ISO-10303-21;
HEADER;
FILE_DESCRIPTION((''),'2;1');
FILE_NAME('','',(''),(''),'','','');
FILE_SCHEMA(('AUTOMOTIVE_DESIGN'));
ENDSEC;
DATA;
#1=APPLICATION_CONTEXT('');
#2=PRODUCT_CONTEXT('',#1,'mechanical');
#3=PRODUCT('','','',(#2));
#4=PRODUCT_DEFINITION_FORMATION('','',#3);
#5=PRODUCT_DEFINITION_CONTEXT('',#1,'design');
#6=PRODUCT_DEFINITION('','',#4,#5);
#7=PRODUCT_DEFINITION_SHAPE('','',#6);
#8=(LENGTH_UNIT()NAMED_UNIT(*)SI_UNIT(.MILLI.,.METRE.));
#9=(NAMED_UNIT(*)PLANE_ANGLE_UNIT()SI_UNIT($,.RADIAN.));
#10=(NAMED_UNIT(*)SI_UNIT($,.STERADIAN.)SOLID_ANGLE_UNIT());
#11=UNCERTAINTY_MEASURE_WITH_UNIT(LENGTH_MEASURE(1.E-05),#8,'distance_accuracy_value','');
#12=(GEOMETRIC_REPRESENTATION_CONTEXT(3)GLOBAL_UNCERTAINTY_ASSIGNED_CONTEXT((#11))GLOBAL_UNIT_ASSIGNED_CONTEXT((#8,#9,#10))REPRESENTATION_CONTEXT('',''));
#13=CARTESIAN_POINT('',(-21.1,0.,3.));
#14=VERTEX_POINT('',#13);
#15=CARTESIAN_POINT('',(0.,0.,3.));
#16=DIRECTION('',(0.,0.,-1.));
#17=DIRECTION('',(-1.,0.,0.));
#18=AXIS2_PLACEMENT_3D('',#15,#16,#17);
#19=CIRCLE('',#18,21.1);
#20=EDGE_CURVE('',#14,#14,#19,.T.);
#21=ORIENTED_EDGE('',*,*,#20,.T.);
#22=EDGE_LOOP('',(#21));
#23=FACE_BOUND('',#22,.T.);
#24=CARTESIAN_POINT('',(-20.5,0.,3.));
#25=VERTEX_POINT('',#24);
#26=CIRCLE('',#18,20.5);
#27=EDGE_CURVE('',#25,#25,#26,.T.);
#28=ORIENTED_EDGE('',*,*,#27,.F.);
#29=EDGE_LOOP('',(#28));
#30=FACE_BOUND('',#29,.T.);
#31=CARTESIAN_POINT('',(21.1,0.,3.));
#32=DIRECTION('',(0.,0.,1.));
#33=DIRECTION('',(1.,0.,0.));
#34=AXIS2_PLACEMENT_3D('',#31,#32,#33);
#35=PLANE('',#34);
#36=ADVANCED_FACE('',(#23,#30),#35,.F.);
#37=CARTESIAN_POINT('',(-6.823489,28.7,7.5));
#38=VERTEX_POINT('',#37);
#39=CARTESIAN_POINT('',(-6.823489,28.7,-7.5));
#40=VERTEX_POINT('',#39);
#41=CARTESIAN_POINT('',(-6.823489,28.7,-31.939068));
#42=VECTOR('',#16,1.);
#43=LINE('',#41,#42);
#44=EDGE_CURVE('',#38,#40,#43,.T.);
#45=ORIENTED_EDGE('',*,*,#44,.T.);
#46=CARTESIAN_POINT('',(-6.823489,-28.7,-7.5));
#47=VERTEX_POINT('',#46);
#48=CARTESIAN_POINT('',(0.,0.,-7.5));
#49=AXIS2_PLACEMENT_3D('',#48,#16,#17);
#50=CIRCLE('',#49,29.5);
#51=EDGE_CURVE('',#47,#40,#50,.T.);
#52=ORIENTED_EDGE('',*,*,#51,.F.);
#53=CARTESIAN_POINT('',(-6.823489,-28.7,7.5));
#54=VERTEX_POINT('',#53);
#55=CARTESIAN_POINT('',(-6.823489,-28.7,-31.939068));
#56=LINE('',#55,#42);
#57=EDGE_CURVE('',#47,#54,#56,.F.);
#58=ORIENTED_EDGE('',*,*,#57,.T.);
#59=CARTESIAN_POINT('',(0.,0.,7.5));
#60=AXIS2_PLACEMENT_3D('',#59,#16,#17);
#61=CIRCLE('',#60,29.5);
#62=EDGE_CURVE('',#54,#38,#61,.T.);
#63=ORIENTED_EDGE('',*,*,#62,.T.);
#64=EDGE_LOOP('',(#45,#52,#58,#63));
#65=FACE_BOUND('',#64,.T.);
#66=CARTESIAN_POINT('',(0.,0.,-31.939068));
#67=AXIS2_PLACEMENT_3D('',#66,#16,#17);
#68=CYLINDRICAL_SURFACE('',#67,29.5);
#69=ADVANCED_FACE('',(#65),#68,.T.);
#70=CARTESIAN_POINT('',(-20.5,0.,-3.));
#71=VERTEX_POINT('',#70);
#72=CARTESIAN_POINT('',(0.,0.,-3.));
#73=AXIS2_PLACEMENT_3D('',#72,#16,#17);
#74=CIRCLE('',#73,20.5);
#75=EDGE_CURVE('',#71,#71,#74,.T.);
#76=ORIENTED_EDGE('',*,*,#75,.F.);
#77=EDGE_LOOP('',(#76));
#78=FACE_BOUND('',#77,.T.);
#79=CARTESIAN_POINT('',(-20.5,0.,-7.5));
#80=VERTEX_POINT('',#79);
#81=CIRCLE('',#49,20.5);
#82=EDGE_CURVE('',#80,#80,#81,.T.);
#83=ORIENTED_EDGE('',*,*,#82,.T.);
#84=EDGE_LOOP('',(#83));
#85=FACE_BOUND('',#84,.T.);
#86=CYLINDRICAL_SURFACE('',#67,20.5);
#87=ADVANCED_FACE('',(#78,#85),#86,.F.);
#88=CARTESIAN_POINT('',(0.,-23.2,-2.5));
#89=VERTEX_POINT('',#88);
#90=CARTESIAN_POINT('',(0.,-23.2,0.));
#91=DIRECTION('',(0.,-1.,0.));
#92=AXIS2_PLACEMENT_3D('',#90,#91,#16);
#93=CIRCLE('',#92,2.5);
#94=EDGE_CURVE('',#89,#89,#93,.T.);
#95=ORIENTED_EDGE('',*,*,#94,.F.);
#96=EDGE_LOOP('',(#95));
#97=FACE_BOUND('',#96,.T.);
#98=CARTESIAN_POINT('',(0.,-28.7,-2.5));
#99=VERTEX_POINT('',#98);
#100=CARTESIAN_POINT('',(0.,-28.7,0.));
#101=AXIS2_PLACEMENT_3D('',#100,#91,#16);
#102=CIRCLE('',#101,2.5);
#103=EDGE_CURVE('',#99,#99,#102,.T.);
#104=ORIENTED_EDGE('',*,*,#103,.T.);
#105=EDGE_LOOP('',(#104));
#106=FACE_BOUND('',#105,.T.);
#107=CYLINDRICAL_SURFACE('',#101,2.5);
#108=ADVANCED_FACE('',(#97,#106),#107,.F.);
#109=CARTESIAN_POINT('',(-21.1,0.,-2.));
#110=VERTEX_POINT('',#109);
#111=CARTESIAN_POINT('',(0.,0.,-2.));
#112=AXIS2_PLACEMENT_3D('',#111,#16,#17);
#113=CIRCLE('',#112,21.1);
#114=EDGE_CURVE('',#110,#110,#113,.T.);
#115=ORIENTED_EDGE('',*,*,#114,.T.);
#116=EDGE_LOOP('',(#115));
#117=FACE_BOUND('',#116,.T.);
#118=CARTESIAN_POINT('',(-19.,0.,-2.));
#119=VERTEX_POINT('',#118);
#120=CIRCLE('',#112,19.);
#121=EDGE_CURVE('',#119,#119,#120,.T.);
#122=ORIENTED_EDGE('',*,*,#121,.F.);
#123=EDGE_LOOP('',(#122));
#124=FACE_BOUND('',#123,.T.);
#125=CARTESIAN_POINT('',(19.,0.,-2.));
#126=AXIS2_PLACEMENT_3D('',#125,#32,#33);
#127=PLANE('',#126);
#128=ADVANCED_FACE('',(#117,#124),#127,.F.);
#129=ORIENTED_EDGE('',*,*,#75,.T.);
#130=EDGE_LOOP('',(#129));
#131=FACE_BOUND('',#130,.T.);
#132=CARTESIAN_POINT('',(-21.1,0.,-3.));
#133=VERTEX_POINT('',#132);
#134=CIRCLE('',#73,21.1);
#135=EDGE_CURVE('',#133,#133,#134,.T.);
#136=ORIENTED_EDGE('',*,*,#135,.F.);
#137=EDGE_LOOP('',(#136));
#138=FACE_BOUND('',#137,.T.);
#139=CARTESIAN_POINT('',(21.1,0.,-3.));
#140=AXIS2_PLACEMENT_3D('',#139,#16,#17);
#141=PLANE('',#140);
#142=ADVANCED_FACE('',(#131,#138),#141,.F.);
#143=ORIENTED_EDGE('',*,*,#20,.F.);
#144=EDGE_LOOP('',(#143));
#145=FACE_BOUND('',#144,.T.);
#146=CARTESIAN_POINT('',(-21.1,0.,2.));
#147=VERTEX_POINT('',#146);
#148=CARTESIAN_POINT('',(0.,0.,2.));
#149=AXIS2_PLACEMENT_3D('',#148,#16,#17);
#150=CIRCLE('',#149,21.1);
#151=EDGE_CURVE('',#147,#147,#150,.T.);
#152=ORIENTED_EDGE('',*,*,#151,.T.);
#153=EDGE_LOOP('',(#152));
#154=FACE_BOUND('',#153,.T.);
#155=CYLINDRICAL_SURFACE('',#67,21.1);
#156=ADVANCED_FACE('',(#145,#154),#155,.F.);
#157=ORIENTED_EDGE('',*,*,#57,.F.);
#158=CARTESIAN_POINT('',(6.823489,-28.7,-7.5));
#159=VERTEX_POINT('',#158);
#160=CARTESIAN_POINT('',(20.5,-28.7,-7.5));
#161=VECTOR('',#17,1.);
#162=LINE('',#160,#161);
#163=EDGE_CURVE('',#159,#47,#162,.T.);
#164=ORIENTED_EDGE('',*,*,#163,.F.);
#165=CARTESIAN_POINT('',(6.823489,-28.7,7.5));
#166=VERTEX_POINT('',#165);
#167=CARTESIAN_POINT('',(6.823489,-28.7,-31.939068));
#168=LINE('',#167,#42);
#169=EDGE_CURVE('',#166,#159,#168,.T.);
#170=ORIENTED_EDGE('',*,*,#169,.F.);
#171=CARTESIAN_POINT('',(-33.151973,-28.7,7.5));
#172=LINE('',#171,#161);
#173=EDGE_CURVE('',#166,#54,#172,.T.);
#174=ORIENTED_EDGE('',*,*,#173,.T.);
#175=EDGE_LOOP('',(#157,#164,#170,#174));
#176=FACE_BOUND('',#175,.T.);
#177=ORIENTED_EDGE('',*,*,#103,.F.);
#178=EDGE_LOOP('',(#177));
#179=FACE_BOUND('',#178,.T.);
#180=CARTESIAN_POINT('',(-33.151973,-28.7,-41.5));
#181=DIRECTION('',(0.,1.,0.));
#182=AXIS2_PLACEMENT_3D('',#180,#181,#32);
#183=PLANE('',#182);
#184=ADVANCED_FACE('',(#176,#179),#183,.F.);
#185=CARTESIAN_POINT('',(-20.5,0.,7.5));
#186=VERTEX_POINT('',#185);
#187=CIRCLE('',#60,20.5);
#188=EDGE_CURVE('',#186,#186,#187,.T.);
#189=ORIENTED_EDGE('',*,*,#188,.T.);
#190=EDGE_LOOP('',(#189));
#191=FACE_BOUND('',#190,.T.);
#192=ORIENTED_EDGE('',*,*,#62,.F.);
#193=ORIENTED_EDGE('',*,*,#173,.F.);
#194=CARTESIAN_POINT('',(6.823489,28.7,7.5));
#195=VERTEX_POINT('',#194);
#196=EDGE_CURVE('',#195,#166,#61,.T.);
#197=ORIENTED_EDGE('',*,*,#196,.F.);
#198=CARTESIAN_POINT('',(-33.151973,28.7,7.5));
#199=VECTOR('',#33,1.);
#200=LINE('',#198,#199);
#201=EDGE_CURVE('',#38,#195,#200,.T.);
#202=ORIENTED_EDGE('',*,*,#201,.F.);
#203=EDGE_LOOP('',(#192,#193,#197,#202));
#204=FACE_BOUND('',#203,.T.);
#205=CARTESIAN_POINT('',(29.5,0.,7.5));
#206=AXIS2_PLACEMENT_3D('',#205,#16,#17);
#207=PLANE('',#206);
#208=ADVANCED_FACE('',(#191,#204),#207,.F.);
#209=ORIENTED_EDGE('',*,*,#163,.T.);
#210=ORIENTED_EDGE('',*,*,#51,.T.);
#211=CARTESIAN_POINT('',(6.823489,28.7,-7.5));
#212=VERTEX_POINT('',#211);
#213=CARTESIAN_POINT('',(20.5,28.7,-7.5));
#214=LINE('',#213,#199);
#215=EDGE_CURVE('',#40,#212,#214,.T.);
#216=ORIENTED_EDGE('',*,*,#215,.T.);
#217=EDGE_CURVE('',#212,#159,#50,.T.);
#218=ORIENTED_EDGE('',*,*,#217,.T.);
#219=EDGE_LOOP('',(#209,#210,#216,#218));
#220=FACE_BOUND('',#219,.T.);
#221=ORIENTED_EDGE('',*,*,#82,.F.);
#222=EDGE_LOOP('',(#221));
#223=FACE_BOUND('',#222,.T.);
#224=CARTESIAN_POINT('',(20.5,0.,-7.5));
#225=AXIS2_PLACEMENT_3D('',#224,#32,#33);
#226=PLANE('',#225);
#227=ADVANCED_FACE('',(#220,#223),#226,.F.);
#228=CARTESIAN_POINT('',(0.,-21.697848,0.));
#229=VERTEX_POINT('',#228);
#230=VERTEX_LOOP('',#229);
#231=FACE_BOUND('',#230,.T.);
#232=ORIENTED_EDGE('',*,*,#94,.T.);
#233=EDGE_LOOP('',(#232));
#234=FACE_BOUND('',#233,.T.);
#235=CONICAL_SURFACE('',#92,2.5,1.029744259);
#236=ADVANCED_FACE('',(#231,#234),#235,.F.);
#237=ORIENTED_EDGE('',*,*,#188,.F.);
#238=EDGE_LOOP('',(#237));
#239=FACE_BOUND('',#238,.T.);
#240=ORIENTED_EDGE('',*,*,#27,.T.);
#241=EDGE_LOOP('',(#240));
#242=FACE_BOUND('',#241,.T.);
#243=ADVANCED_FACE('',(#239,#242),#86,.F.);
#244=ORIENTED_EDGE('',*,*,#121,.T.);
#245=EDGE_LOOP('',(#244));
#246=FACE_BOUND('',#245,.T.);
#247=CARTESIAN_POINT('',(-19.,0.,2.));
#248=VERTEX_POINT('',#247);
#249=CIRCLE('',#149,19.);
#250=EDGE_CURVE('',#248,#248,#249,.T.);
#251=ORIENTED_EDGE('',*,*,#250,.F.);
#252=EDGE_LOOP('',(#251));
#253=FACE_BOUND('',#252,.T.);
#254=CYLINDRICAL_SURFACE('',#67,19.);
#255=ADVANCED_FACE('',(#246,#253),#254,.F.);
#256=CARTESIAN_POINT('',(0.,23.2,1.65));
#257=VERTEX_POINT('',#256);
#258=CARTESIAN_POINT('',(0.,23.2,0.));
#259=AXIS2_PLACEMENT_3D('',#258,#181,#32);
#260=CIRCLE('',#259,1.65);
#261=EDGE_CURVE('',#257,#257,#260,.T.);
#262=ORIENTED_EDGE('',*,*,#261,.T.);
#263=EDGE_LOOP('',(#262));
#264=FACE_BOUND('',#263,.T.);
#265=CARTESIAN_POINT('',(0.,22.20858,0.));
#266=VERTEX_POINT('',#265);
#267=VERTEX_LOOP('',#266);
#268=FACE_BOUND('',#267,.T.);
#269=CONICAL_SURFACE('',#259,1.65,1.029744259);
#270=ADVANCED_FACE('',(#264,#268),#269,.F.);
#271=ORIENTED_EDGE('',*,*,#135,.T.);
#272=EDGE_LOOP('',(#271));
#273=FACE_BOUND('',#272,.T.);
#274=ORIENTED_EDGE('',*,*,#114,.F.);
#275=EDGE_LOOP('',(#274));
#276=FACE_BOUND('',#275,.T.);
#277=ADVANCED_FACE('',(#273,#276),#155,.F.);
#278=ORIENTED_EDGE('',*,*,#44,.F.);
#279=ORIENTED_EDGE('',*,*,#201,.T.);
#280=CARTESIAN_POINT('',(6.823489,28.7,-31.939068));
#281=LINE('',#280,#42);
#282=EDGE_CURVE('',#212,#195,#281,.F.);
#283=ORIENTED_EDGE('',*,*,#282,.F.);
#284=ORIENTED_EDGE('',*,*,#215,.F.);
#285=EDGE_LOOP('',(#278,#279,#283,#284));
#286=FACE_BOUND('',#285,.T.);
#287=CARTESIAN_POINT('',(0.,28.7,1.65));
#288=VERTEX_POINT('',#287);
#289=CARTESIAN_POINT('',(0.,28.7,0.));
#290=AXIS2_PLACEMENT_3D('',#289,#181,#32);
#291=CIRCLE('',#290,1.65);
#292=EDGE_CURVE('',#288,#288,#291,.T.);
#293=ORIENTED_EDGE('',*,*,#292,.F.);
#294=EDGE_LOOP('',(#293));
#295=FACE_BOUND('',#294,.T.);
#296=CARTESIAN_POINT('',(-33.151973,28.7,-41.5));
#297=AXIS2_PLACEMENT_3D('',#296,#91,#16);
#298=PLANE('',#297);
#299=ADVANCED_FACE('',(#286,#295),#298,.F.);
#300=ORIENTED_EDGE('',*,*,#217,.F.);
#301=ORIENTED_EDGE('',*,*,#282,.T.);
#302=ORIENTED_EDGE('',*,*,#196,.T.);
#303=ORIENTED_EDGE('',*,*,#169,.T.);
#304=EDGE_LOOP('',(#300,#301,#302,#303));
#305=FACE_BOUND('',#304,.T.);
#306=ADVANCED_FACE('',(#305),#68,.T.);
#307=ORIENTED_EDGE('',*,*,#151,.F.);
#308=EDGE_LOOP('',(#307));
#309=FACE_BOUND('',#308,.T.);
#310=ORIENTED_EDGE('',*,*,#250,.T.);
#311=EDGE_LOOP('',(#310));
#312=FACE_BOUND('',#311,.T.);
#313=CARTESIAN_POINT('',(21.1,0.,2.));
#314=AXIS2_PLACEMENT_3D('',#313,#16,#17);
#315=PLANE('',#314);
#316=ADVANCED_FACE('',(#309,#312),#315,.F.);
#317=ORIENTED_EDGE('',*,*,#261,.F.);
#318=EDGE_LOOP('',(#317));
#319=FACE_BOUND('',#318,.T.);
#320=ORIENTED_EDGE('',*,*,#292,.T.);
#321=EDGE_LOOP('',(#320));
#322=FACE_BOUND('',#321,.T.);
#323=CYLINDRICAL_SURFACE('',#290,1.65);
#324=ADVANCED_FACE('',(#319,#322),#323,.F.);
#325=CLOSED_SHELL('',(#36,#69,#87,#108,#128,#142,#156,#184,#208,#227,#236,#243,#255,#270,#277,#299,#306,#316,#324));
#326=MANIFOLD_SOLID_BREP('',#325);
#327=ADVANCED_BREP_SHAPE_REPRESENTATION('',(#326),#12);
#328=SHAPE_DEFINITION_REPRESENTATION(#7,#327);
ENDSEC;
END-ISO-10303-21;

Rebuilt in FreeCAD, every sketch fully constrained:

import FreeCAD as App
import Part
import Sketcher

V = App.Vector


def add_polygon(sketch, points):
    """Adds a closed chain of lines whose ends are joined by coincident constraints."""
    first, n = sketch.GeometryCount, len(points)
    for a, b in zip(points, points[1:] + points[:1]):
        sketch.addGeometry(Part.LineSegment(App.Vector(*a, 0), App.Vector(*b, 0)), False)
    for i in range(n):
        sketch.addConstraint(Sketcher.Constraint("Coincident", first + i, 2, first + (i + 1) % n, 1))

doc = App.newDocument("Part")
body = doc.addObject("PartDesign::Body", "Body")

sketch1 = doc.addObject("Sketcher::SketchObject", "Sketch")
body.addObject(sketch1)
sketch1.AttachmentSupport = (doc.XZ_Plane, [""])
sketch1.MapMode = "FlatFace"
add_polygon(sketch1, [(29.5, 7.5), (29.5, -7.5), (20.5, -7.5), (20.5, -3), (21.1, -3), (21.1, -2), (19, -2), (19, 2), (21.1, 2), (21.1, 3), (20.5, 3), (20.5, 7.5)])
sketch1.addConstraint(Sketcher.Constraint("Vertical", 0))
sketch1.addConstraint(Sketcher.Constraint("Horizontal", 1))
sketch1.addConstraint(Sketcher.Constraint("Vertical", 2))
sketch1.addConstraint(Sketcher.Constraint("Horizontal", 3))
sketch1.addConstraint(Sketcher.Constraint("Vertical", 4))
sketch1.addConstraint(Sketcher.Constraint("Horizontal", 5))
sketch1.addConstraint(Sketcher.Constraint("Vertical", 6))
sketch1.addConstraint(Sketcher.Constraint("Horizontal", 7))
sketch1.addConstraint(Sketcher.Constraint("Vertical", 8))
sketch1.addConstraint(Sketcher.Constraint("Horizontal", 9))
sketch1.addConstraint(Sketcher.Constraint("Vertical", 10))
sketch1.addConstraint(Sketcher.Constraint("Horizontal", 11))
sketch1.addConstraint(Sketcher.Constraint("Symmetric", 4, 2, 7, 2, -1))
sketch1.addConstraint(Sketcher.Constraint("Symmetric", 2, 2, 9, 2, -1))
sketch1.addConstraint(Sketcher.Constraint("Equal", 2, 10))
sketch1.addConstraint(Sketcher.Constraint("DistanceX", 1, 2, 1, 1, 9.0))
sketch1.addConstraint(Sketcher.Constraint("DistanceY", 0, 2, 0, 1, 15.0))
sketch1.addConstraint(Sketcher.Constraint("DistanceY", 4, 1, 4, 2, 1.0))
sketch1.addConstraint(Sketcher.Constraint("DistanceY", 6, 1, 6, 2, 4.0))
sketch1.addConstraint(Sketcher.Constraint("DistanceX", 3, 1, 3, 2, 0.6))
sketch1.addConstraint(Sketcher.Constraint("DistanceX", 5, 2, 5, 1, 2.1))
sketch1.addConstraint(Sketcher.Constraint("DistanceX", -1, 1, 5, 2, 19.0))
revolution = doc.addObject("PartDesign::Revolution", "Revolution")
body.addObject(revolution)
revolution.Profile = sketch1
revolution.ReferenceAxis = (sketch1, ["V_Axis"])
revolution.Angle = 360

sketch2 = doc.addObject("Sketcher::SketchObject", "Sketch001")
body.addObject(sketch2)
sketch2.AttachmentSupport = (doc.XY_Plane, [""])
sketch2.MapMode = "FlatFace"
sketch2.AttachmentOffset = App.Placement(V(0, 0, 7.5), App.Rotation())
add_polygon(sketch2, [(-33.151973, 37.94892), (-33.151973, 28.7), (30.869772, 28.7), (30.869772, 37.94892)])
add_polygon(sketch2, [(-33.151973, -28.7), (-33.151973, -37.94892), (30.869772, -37.94892), (30.869772, -28.7)])
sketch2.addConstraint(Sketcher.Constraint("Vertical", 0))
sketch2.addConstraint(Sketcher.Constraint("Horizontal", 1))
sketch2.addConstraint(Sketcher.Constraint("Vertical", 2))
sketch2.addConstraint(Sketcher.Constraint("Horizontal", 3))
sketch2.addConstraint(Sketcher.Constraint("Vertical", 4))
sketch2.addConstraint(Sketcher.Constraint("Horizontal", 5))
sketch2.addConstraint(Sketcher.Constraint("Vertical", 6))
sketch2.addConstraint(Sketcher.Constraint("Horizontal", 7))
sketch2.addConstraint(Sketcher.Constraint("Symmetric", 3, 2, 4, 2, -1))
sketch2.addConstraint(Sketcher.Constraint("Symmetric", 1, 2, 6, 2, -1))
sketch2.addConstraint(Sketcher.Constraint("DistanceY", -1, 1, 0, 2, 28.7))
sketch2.addConstraint(Sketcher.Constraint("DistanceY", 0, 2, 0, 1, 9.24892))
sketch2.addConstraint(Sketcher.Constraint("DistanceX", 1, 1, 1, 2, 64.021744))
sketch2.addConstraint(Sketcher.Constraint("DistanceX", -1, 1, 1, 2, 30.869772))
pocket1 = doc.addObject("PartDesign::Pocket", "Pocket")
body.addObject(pocket1)
pocket1.Profile = sketch2
pocket1.Length = 49

sketch3 = doc.addObject("Sketcher::SketchObject", "Sketch002")
body.addObject(sketch3)
sketch3.AttachmentSupport = (doc.XZ_Plane, [""])
sketch3.MapMode = "FlatFace"
sketch3.AttachmentOffset = App.Placement(V(0, 0, -28.7), App.Rotation())
sketch3.addGeometry(Part.Circle(V(0, 0, 0), V(0, 0, 1), 1.65), False)
sketch3.addConstraint(Sketcher.Constraint("Coincident", 0, 3, -1, 1))
sketch3.addConstraint(Sketcher.Constraint("Diameter", 0, 3.3))
doc.recompute()
hole = doc.addObject("PartDesign::Hole", "Hole")
body.addObject(hole)
hole.Profile = sketch3
hole.ThreadType = "None"
hole.Diameter = 3.3
hole.DepthType = "Dimension"
hole.Depth = 5.5
hole.DrillPoint = "Angled"
hole.DrillPointAngle = 118
hole.Reversed = True

sketch4 = doc.addObject("Sketcher::SketchObject", "Sketch003")
body.addObject(sketch4)
sketch4.AttachmentSupport = (doc.XZ_Plane, [""])
sketch4.MapMode = "FlatFace"
sketch4.AttachmentOffset = App.Placement(V(0, 0, 28.7), App.Rotation())
sketch4.addGeometry(Part.Circle(V(0, 0, 0), V(0, 0, 1), 2.5), False)
sketch4.addConstraint(Sketcher.Constraint("Coincident", 0, 3, -1, 1))
sketch4.addConstraint(Sketcher.Constraint("Diameter", 0, 5.0))
doc.recompute()
hole2 = doc.addObject("PartDesign::Hole", "Hole001")
body.addObject(hole2)
hole2.Profile = sketch4
hole2.ThreadType = "None"
hole2.Diameter = 5
hole2.DepthType = "Dimension"
hole2.Depth = 5.5
hole2.DrillPoint = "Angled"
hole2.DrillPointAngle = 118

doc.recompute()
